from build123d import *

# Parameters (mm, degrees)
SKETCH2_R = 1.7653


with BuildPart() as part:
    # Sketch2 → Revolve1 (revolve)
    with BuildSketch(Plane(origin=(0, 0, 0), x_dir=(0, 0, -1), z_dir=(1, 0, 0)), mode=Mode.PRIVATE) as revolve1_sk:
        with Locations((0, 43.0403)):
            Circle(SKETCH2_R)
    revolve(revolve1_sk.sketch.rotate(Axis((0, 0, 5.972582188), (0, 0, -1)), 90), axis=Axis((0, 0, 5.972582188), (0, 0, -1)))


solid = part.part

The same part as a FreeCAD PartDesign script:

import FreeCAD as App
import Part
import Sketcher
Q = App.Units.Quantity

doc = App.newDocument("Part")
params = doc.addObject("Spreadsheet::Sheet", "Params")
for row, (alias, value) in enumerate([
    ("sketch1_diameter", "0.139 in"),
    ("revolution_angle", "360 deg"),
], start=1):
    params.set(f"A{row}", alias)
    params.set(f"B{row}", "=" + value)
    params.setAlias(f"B{row}", alias)

body = doc.addObject("PartDesign::Body", "Body")

# Sketch on YZ plane
sketch1 = body.newObject("Sketcher::SketchObject", "Sketch")
sketch1.AttachmentSupport = (doc.getObject("YZ_Plane"), [""])
sketch1.MapMode = "FlatFace"
sketch1.addGeometry(Part.Circle(App.Vector(43, 0, 0), App.Vector(0, 0, 1), 1.8), False)
sketch1.addConstraint([
    Sketcher.Constraint("PointOnObject", 0, 3, -1),
    Sketcher.Constraint("Diameter", 0, Q("0.139 in")),
    Sketcher.Constraint("DistanceX", -1, 1, 0, 3, Q("1.6945 in")),
])
sketch1.setExpression("Constraints[1]", "Params.sketch1_diameter")
revolution = body.newObject("PartDesign::Revolution", "Revolution")
revolution.Profile = sketch1
revolution.ReferenceAxis = (sketch1, ["V_Axis"])
revolution.setExpression("Angle", "Params.revolution_angle")

doc.recompute()
